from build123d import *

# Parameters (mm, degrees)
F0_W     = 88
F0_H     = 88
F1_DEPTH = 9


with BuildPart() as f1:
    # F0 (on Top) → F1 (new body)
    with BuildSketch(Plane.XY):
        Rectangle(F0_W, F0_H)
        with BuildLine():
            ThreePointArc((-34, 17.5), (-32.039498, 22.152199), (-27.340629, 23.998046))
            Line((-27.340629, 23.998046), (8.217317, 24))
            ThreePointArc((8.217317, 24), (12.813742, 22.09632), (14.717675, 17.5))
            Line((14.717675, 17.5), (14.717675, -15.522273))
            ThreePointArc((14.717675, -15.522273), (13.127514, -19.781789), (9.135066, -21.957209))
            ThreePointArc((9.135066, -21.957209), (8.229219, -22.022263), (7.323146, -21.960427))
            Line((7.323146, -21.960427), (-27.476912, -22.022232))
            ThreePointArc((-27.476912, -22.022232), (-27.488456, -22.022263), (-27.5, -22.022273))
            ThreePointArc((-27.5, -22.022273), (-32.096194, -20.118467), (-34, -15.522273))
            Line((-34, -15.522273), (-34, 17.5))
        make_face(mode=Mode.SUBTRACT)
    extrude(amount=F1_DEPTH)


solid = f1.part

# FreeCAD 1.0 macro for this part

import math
import FreeCAD as App
import Part
import Sketcher
Q = App.Units.Quantity


def add_polygon(sketch, points):
    """Adds a closed chain of lines whose ends are joined by coincident constraints."""
    first, n = sketch.GeometryCount, len(points)
    for a, b in zip(points, points[1:] + points[:1]):
        sketch.addGeometry(Part.LineSegment(App.Vector(*a, 0), App.Vector(*b, 0)), False)
    for i in range(n):
        sketch.addConstraint(Sketcher.Constraint("Coincident", first + i, 2, first + (i + 1) % n, 1))

doc = App.newDocument("Part")
params = doc.addObject("Spreadsheet::Sheet", "Params")
for row, (alias, value) in enumerate([
    ("sketch1_radius", "6.500001 mm"),
    ("sketch1_radius2", "6.500002 mm"),
    ("sketch1_radius3", "6.5 mm"),
    ("sketch1_width", "88 mm"),
    ("sketch1_height", "88 mm"),
    ("pad1_length", "9 mm"),
], start=1):
    params.set(f"A{row}", alias)
    params.set(f"B{row}", "=" + value)
    params.setAlias(f"B{row}", alias)

body = doc.addObject("PartDesign::Body", "Body")

# Sketch on XY plane
sketch1 = body.newObject("Sketcher::SketchObject", "Sketch")
sketch1.AttachmentSupport = (doc.getObject("XY_Plane"), [""])
sketch1.MapMode = "FlatFace"
add_polygon(sketch1, [(-44, 44), (-44, -44), (44, -44), (44, 44)])  # lines 0-3
sketch1.addGeometry(Part.LineSegment(App.Vector(-34, -15.522273, 0), App.Vector(-34, 17.5, 0)), False)  # 4
sketch1.addGeometry(Part.ArcOfCircle(Part.Circle(App.Vector(-27.499999, 17.5, 0), App.Vector(0, 0, 1), 6.500001), math.radians(88.595051), math.radians(179.999996)), False)  # 5
sketch1.addGeometry(Part.LineSegment(App.Vector(-27.340629, 23.998046, 0), App.Vector(8.217317, 24, 0)), False)  # 6
sketch1.addGeometry(Part.ArcOfCircle(Part.Circle(App.Vector(8.217673, 17.499998, 0), App.Vector(0, 0, 1), 6.500002), math.radians(0.000017), math.radians(90.003138)), False)  # 7
sketch1.addGeometry(Part.LineSegment(App.Vector(14.717675, 17.5, 0), App.Vector(14.717675, -15.522273, 0)), False)  # 8
sketch1.addGeometry(Part.ArcOfCircle(Part.Circle(App.Vector(8.217673, -15.522272, 0), App.Vector(0, 0, 1), 6.500002), math.radians(-81.886334), math.radians(-0.000012)), False)  # 9
sketch1.addGeometry(Part.ArcOfCircle(Part.Circle(App.Vector(8.217675, -15.522233, 0), App.Vector(0, 0, 1), 6.50004), math.radians(-97.910087), math.radians(-81.886397)), False)  # 10
sketch1.addGeometry(Part.LineSegment(App.Vector(7.323146, -21.960427, 0), App.Vector(-27.476912, -22.022232, 0)), False)  # 11
sketch1.addGeometry(Part.ArcOfCircle(Part.Circle(App.Vector(-27.499725, -15.676336, 0), App.Vector(0, 0, 1), 6.345937), math.radians(-90.002481), math.radians(-89.794026)), False)  # 12
sketch1.addGeometry(Part.ArcOfCircle(Part.Circle(App.Vector(-27.5, -15.522273, 0), App.Vector(0, 0, 1), 6.5), math.radians(-179.999998), math.radians(-90.000002)), False)  # 13
sketch1.addConstraint(Sketcher.Constraint("Coincident", 4, 2, 5, 2))
sketch1.addConstraint(Sketcher.Constraint("Coincident", 5, 1, 6, 1))
sketch1.addConstraint(Sketcher.Constraint("Coincident", 6, 2, 7, 2))
sketch1.addConstraint(Sketcher.Constraint("Coincident", 7, 1, 8, 1))
sketch1.addConstraint(Sketcher.Constraint("Coincident", 8, 2, 9, 2))
sketch1.addConstraint(Sketcher.Constraint("Coincident", 9, 1, 10, 2))
sketch1.addConstraint(Sketcher.Constraint("Coincident", 10, 1, 11, 1))
sketch1.addConstraint(Sketcher.Constraint("Coincident", 11, 2, 12, 2))
sketch1.addConstraint(Sketcher.Constraint("Coincident", 12, 1, 13, 2))
sketch1.addConstraint(Sketcher.Constraint("Coincident", 13, 1, 4, 1))
sketch1.addConstraint(Sketcher.Constraint("Vertical", 0))
sketch1.addConstraint(Sketcher.Constraint("Horizontal", 1))
sketch1.addConstraint(Sketcher.Constraint("Vertical", 2))
sketch1.addConstraint(Sketcher.Constraint("Horizontal", 3))
sketch1.addConstraint(Sketcher.Constraint("Vertical", 4))
sketch1.addConstraint(Sketcher.Constraint("Vertical", 8))
sketch1.addConstraint(Sketcher.Constraint("Radius", 5, Q("6.500001 mm")))
sketch1.addConstraint(Sketcher.Constraint("Radius", 7, Q("6.500002 mm")))
sketch1.addConstraint(Sketcher.Constraint("Radius", 13, Q("6.5 mm")))
sketch1.addConstraint(Sketcher.Constraint("DistanceX", 1, 1, 1, 2, Q("88 mm")))
sketch1.addConstraint(Sketcher.Constraint("DistanceY", 0, 2, 0, 1, Q("88 mm")))
sketch1.addConstraint(Sketcher.Constraint("DistanceX", 0, 2, -1, 1, Q("44 mm")))
sketch1.addConstraint(Sketcher.Constraint("DistanceY", 0, 2, -1, 1, Q("44 mm")))
sketch1.addConstraint(Sketcher.Constraint("DistanceX", 4, 2, -1, 1, Q("34 mm")))
sketch1.addConstraint(Sketcher.Constraint("DistanceY", -1, 1, 6, 2, Q("24 mm")))
sketch1.addConstraint(Sketcher.Constraint("DistanceY", -1, 1, 5, 3, Q("17.5 mm")))
sketch1.addConstraint(Sketcher.Constraint("DistanceY", -1, 1, 4, 2, Q("17.5 mm")))
sketch1.addConstraint(Sketcher.Constraint("DistanceY", -1, 1, 7, 1, Q("17.5 mm")))
sketch1.addConstraint(Sketcher.Constraint("DistanceX", 12, 1, -1, 1, Q("27.5 mm")))
sketch1.addConstraint(Sketcher.Constraint("DistanceX", 10, 3, 7, 1, Q("6.5 mm")))
sketch1.addConstraint(Sketcher.Constraint("DistanceY", 12, 1, 13, 1, Q("6.5 mm")))
sketch1.addConstraint(Sketcher.Constraint("Radius", 10, Q("6.50004 mm")))
sketch1.addConstraint(Sketcher.Constraint("Radius", 9, Q("6.500002 mm")))
sketch1.addConstraint(Sketcher.Constraint("Radius", 12, Q("6.345937 mm")))
sketch1.addConstraint(Sketcher.Constraint("DistanceX", 12, 3, 10, 3, Q("35.7174 mm")))
sketch1.addConstraint(Sketcher.Constraint("DistanceY", 4, 1, 4, 2, Q("33.022273 mm")))
sketch1.addConstraint(Sketcher.Constraint("DistanceY", 8, 2, 8, 1, Q("33.022273 mm")))
sketch1.addConstraint(Sketcher.Constraint("DistanceY", 9, 3, -1, 1, Q("15.522272 mm")))
sketch1.addConstraint(Sketcher.Constraint("DistanceX", 5, 1, -1, 1, Q("27.340629 mm")))
sketch1.addConstraint(Sketcher.Constraint("DistanceY", 9, 1, -1, 1, Q("21.957209 mm")))
sketch1.addConstraint(Sketcher.Constraint("DistanceX", 11, 2, -1, 1, Q("27.476912 mm")))
sketch1.addConstraint(Sketcher.Constraint("DistanceX", 6, 2, 8, 2, Q("6.500358 mm")))
sketch1.addConstraint(Sketcher.Constraint("DistanceX", 10, 1, 9, 1, Q("1.81192 mm")))
sketch1.addConstraint(Sketcher.Constraint("Distance", 6, Q("35.557946 mm")))
sketch1.setExpression("Constraints[20]", "Params.sketch1_radius")
sketch1.setExpression("Constraints[21]", "Params.sketch1_radius2")
sketch1.setExpression("Constraints[22]", "Params.sketch1_radius3")
sketch1.setExpression("Constraints[23]", "Params.sketch1_width")
sketch1.setExpression("Constraints[24]", "Params.sketch1_height")
pad1 = body.newObject("PartDesign::Pad", "Pad")
pad1.Profile = sketch1
pad1.setExpression("Length", "Params.pad1_length")

doc.recompute()
